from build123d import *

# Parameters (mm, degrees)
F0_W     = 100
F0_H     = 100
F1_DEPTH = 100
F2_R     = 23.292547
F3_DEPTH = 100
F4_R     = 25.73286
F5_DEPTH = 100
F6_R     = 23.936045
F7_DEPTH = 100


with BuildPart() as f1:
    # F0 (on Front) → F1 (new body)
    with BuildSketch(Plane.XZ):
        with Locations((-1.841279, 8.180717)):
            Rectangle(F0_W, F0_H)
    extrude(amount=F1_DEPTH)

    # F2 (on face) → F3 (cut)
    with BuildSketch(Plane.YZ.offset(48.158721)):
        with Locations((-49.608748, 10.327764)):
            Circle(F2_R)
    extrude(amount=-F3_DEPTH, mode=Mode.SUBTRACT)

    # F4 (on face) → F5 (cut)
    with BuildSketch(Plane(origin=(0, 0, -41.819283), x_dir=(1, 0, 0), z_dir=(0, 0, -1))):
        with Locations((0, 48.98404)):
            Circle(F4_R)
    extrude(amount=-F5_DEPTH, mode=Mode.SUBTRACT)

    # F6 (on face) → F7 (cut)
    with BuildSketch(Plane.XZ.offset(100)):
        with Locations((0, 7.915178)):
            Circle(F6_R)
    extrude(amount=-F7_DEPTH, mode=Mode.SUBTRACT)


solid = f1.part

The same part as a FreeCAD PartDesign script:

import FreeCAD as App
import Part
import Sketcher
from FreeCAD import Vector

doc = App.newDocument("Part")
body = doc.addObject("PartDesign::Body", "Body")

sketch1 = doc.addObject("Sketcher::SketchObject", "Sketch")
body.addObject(sketch1)
sketch1.AttachmentSupport = (doc.XZ_Plane, [""])
sketch1.MapMode = "FlatFace"
sketch1.addGeometry(Part.LineSegment(Vector(-52, 58, 0), Vector(-52, -42, 0)), False)
sketch1.addGeometry(Part.LineSegment(Vector(-52, -42, 0), Vector(48, -42, 0)), False)
sketch1.addGeometry(Part.LineSegment(Vector(48, -42, 0), Vector(48, 58, 0)), False)
sketch1.addGeometry(Part.LineSegment(Vector(48, 58, 0), Vector(-52, 58, 0)), False)
sketch1.addConstraint(Sketcher.Constraint("Coincident", 0, 2, 1, 1))
sketch1.addConstraint(Sketcher.Constraint("Coincident", 1, 2, 2, 1))
sketch1.addConstraint(Sketcher.Constraint("Coincident", 2, 2, 3, 1))
sketch1.addConstraint(Sketcher.Constraint("Coincident", 3, 2, 0, 1))
sketch1.addConstraint(Sketcher.Constraint("Vertical", 0))
sketch1.addConstraint(Sketcher.Constraint("Horizontal", 1))
sketch1.addConstraint(Sketcher.Constraint("Vertical", 2))
sketch1.addConstraint(Sketcher.Constraint("Horizontal", 3))
sketch1.addConstraint(Sketcher.Constraint("Equal", 3, 0))
sketch1.addConstraint(Sketcher.Constraint("DistanceX", 1, 1, 1, 2, 100.0))
sketch1.addConstraint(Sketcher.Constraint("DistanceX", 0, 2, -1, 1, 51.841279))
sketch1.addConstraint(Sketcher.Constraint("DistanceY", 0, 2, -1, 1, 41.819283))
pad1 = doc.addObject("PartDesign::Pad", "Pad")
body.addObject(pad1)
pad1.Profile = sketch1
pad1.Length = 100

sketch2 = doc.addObject("Sketcher::SketchObject", "Sketch001")
body.addObject(sketch2)
sketch2.AttachmentSupport = (doc.YZ_Plane, [""])
sketch2.MapMode = "FlatFace"
sketch2.AttachmentOffset = App.Placement(Vector(0, 0, 48.158721), App.Rotation())
sketch2.addGeometry(Part.Circle(Vector(-50, 10, 0), Vector(0, 0, 1), 23), False)
sketch2.addConstraint(Sketcher.Constraint("Diameter", 0, 46.585094))
sketch2.addConstraint(Sketcher.Constraint("DistanceX", 0, 3, -1, 1, 49.608748))
sketch2.addConstraint(Sketcher.Constraint("DistanceY", -1, 1, 0, 3, 10.327764))
pocket1 = doc.addObject("PartDesign::Pocket", "Pocket")
body.addObject(pocket1)
pocket1.Profile = sketch2
pocket1.Length = 100

sketch3 = doc.addObject("Sketcher::SketchObject", "Sketch002")
body.addObject(sketch3)
sketch3.AttachmentSupport = (doc.XY_Plane, [""])
sketch3.MapMode = "FlatFace"
sketch3.AttachmentOffset = App.Placement(Vector(0, 0, -41.819283), App.Rotation())
sketch3.addGeometry(Part.Circle(Vector(0, -49, 0), Vector(0, 0, 1), 26), False)
sketch3.addConstraint(Sketcher.Constraint("PointOnObject", 0, 3, -2))
sketch3.addConstraint(Sketcher.Constraint("Diameter", 0, 51.46572))
sketch3.addConstraint(Sketcher.Constraint("DistanceY", 0, 3, -1, 1, 48.98404))
pocket2 = doc.addObject("PartDesign::Pocket", "Pocket001")
body.addObject(pocket2)
pocket2.Profile = sketch3
pocket2.Length = 100
pocket2.Reversed = True

sketch4 = doc.addObject("Sketcher::SketchObject", "Sketch003")
body.addObject(sketch4)
sketch4.AttachmentSupport = (doc.XZ_Plane, [""])
sketch4.MapMode = "FlatFace"
sketch4.AttachmentOffset = App.Placement(Vector(0, 0, 100), App.Rotation())
sketch4.addGeometry(Part.Circle(Vector(0, 8, 0), Vector(0, 0, 1), 24), False)
sketch4.addConstraint(Sketcher.Constraint("PointOnObject", 0, 3, -2))
sketch4.addConstraint(Sketcher.Constraint("Diameter", 0, 47.87209))
sketch4.addConstraint(Sketcher.Constraint("DistanceY", -1, 1, 0, 3, 7.915178))
pocket3 = doc.addObject("PartDesign::Pocket", "Pocket002")
body.addObject(pocket3)
pocket3.Profile = sketch4
pocket3.Length = 100

doc.recompute()
